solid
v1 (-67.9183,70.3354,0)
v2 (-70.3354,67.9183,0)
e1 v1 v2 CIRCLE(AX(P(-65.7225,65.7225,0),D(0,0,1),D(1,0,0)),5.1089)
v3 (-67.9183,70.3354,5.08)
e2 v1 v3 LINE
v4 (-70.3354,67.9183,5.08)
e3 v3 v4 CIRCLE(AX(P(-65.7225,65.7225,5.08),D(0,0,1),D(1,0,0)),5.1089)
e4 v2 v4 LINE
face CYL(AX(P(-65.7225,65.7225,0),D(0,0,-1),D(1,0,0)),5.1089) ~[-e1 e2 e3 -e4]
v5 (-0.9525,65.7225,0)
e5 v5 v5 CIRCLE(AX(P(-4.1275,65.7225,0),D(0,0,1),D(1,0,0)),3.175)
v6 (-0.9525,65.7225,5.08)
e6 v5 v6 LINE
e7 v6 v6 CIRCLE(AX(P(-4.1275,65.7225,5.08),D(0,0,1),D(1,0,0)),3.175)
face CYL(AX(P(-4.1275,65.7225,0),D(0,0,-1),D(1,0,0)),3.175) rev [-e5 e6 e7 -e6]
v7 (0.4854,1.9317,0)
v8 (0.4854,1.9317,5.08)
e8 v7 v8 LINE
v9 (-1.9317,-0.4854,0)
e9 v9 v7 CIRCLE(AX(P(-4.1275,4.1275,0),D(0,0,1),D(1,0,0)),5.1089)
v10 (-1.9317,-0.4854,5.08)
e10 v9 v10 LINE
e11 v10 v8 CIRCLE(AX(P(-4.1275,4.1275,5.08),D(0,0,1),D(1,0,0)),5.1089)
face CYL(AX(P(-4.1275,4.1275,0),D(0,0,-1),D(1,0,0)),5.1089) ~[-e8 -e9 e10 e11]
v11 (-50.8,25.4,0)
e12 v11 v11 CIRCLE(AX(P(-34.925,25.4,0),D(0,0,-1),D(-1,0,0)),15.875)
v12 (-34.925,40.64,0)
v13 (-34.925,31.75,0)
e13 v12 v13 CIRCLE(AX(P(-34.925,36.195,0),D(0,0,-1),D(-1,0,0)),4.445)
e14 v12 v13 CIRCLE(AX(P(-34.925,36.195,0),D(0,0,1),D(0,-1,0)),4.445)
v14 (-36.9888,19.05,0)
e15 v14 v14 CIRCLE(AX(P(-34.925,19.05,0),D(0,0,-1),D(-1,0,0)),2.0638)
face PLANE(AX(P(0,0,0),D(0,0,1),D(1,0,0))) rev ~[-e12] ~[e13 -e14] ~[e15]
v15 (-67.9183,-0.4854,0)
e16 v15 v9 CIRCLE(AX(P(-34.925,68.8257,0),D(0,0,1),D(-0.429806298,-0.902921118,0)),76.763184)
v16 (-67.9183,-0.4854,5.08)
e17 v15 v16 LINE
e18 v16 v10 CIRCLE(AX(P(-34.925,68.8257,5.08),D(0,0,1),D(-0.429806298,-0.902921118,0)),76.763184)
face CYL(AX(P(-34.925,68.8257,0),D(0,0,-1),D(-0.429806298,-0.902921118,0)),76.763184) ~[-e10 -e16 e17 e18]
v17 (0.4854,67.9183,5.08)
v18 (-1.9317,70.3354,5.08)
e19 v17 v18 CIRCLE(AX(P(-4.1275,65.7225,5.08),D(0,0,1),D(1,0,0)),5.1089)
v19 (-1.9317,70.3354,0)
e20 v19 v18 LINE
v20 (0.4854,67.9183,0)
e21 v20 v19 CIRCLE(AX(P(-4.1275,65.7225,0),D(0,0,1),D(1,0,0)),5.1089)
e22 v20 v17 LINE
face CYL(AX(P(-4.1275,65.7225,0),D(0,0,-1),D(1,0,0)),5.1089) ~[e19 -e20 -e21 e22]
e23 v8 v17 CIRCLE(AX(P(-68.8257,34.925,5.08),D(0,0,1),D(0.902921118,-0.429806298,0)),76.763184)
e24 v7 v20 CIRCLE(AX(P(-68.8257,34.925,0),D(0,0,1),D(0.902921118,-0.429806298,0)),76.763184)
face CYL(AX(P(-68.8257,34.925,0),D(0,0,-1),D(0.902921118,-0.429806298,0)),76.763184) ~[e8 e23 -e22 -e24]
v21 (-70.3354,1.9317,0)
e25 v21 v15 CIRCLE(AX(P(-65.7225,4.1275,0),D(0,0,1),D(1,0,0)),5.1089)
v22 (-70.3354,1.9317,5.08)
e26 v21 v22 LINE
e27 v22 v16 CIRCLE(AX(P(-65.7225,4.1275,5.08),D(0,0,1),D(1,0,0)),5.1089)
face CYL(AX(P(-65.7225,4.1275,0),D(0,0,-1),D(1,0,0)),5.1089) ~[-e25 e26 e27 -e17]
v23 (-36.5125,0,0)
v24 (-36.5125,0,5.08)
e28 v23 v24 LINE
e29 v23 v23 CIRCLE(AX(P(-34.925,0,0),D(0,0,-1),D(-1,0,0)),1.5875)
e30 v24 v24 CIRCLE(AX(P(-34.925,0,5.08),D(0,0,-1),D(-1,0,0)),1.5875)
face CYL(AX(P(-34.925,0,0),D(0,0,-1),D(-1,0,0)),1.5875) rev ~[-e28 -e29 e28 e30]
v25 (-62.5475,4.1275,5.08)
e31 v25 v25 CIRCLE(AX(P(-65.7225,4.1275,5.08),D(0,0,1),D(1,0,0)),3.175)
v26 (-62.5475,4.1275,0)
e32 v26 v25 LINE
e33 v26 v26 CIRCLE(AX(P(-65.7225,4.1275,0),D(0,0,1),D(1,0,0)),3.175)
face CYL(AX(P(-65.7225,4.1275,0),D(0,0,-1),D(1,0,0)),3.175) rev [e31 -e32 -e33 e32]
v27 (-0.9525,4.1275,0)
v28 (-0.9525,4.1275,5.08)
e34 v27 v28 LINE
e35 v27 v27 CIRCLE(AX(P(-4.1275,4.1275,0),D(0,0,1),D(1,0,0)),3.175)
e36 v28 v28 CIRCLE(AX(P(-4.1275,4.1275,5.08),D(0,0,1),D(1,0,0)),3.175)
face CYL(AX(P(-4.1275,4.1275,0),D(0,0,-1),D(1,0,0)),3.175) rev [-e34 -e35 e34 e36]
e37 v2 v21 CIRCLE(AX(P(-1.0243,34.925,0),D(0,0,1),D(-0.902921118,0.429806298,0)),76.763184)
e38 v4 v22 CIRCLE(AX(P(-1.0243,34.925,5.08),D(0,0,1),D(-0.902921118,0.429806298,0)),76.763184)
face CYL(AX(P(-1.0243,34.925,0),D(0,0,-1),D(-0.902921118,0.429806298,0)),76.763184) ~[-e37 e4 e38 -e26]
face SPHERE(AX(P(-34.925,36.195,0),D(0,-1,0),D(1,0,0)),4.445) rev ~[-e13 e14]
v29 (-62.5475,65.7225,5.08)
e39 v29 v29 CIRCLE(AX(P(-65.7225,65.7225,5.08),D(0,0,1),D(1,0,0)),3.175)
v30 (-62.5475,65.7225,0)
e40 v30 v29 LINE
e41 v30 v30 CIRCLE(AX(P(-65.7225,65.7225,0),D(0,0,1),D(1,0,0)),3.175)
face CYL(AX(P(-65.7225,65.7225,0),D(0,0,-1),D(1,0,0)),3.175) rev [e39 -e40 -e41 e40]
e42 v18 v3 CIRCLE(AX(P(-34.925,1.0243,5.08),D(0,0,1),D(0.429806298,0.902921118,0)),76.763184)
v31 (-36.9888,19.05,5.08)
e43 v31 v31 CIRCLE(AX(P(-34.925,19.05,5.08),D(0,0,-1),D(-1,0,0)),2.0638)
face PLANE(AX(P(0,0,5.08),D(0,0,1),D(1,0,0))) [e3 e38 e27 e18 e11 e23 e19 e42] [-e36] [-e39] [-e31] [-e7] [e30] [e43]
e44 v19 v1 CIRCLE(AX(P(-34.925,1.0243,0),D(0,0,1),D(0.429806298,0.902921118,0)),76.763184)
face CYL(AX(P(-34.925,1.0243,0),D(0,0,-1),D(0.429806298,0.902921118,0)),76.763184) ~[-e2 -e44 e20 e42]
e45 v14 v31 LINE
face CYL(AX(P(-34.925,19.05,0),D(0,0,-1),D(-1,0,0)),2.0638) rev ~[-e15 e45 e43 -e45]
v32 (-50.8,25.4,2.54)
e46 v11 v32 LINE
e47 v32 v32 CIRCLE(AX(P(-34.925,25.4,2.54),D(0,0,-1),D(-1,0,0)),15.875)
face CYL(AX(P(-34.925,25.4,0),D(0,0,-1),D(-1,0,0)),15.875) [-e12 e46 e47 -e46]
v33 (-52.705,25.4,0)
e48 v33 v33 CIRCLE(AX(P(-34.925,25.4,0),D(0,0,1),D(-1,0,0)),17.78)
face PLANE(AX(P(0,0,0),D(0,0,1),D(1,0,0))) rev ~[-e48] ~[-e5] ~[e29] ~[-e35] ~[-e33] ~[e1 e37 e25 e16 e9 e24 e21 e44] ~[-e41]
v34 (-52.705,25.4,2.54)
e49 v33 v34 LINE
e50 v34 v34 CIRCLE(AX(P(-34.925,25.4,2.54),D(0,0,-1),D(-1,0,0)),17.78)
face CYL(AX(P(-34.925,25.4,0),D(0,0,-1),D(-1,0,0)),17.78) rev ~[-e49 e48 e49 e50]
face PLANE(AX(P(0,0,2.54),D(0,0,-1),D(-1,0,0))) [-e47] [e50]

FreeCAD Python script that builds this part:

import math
import FreeCAD as App
import Part
import Sketcher
Q = App.Units.Quantity

doc = App.newDocument("Part")
body = doc.addObject("PartDesign::Body", "Body")

# Sketch on XY plane
sketch1 = doc.addObject("Sketcher::SketchObject", "Sketch")
body.addObject(sketch1)
sketch1.AttachmentSupport = (doc.XY_Plane, [""])
sketch1.MapMode = "FlatFace"
sketch1.addGeometry(Part.ArcOfCircle(Part.Circle(App.Vector(-34.9, 68.8, 0), App.Vector(0, 0, 1), 76.8), math.radians(-115), math.radians(-65)), False)
sketch1.addGeometry(Part.ArcOfCircle(Part.Circle(App.Vector(-4.1, 4.1, 0), App.Vector(0, 0, 1), 5.1), math.radians(-65), math.radians(-25)), False)
sketch1.addGeometry(Part.ArcOfCircle(Part.Circle(App.Vector(-68.8, 34.9, 0), App.Vector(0, 0, 1), 76.8), math.radians(-25), math.radians(25)), False)
sketch1.addGeometry(Part.ArcOfCircle(Part.Circle(App.Vector(-4.1, 65.7, 0), App.Vector(0, 0, 1), 5.1), math.radians(25), math.radians(65)), False)
sketch1.addGeometry(Part.ArcOfCircle(Part.Circle(App.Vector(-34.9, 1, 0), App.Vector(0, 0, 1), 76.8), math.radians(65), math.radians(115)), False)
sketch1.addGeometry(Part.ArcOfCircle(Part.Circle(App.Vector(-65.7, 65.7, 0), App.Vector(0, 0, 1), 5.1), math.radians(115), math.radians(155)), False)
sketch1.addGeometry(Part.ArcOfCircle(Part.Circle(App.Vector(-1, 34.9, 0), App.Vector(0, 0, 1), 76.8), math.radians(155), math.radians(205)), False)
sketch1.addGeometry(Part.ArcOfCircle(Part.Circle(App.Vector(-65.7, 4.1, 0), App.Vector(0, 0, 1), 5.1), math.radians(-155), math.radians(-115)), False)
sketch1.addGeometry(Part.Circle(App.Vector(-65.7, 4.1, 0), App.Vector(0, 0, 1), 3.2), False)
sketch1.addGeometry(Part.Circle(App.Vector(-4.1, 4.1, 0), App.Vector(0, 0, 1), 3.2), False)
sketch1.addGeometry(Part.Circle(App.Vector(-65.7, 65.7, 0), App.Vector(0, 0, 1), 3.2), False)
sketch1.addGeometry(Part.Circle(App.Vector(-4.1, 65.7, 0), App.Vector(0, 0, 1), 3.2), False)
sketch1.addConstraint(Sketcher.Constraint("Tangent", 0, 2, 1, 1))
sketch1.addConstraint(Sketcher.Constraint("Tangent", 1, 2, 2, 1))
sketch1.addConstraint(Sketcher.Constraint("Tangent", 2, 2, 3, 1))
sketch1.addConstraint(Sketcher.Constraint("Tangent", 3, 2, 4, 1))
sketch1.addConstraint(Sketcher.Constraint("Tangent", 4, 2, 5, 1))
sketch1.addConstraint(Sketcher.Constraint("Tangent", 5, 2, 6, 1))
sketch1.addConstraint(Sketcher.Constraint("Tangent", 6, 2, 7, 1))
sketch1.addConstraint(Sketcher.Constraint("Tangent", 7, 2, 0, 1))
sketch1.addConstraint(Sketcher.Constraint("Coincident", 8, 3, 7, 3))
sketch1.addConstraint(Sketcher.Constraint("Coincident", 9, 3, 1, 3))
sketch1.addConstraint(Sketcher.Constraint("Coincident", 10, 3, 5, 3))
sketch1.addConstraint(Sketcher.Constraint("Coincident", 11, 3, 3, 3))
sketch1.addConstraint(Sketcher.Constraint("Equal", 0, 2))
sketch1.addConstraint(Sketcher.Constraint("Equal", 1, 3))
sketch1.addConstraint(Sketcher.Constraint("Equal", 2, 4))
sketch1.addConstraint(Sketcher.Constraint("Equal", 3, 5))
sketch1.addConstraint(Sketcher.Constraint("Equal", 4, 6))
sketch1.addConstraint(Sketcher.Constraint("Equal", 5, 7))
sketch1.addConstraint(Sketcher.Constraint("Equal", 8, 9))
sketch1.addConstraint(Sketcher.Constraint("Equal", 9, 10))
sketch1.addConstraint(Sketcher.Constraint("Equal", 10, 11))
sketch1.addConstraint(Sketcher.Constraint("Horizontal", 3, 3, 5, 3))
sketch1.addConstraint(Sketcher.Constraint("Horizontal", 2, 3, 6, 3))
sketch1.addConstraint(Sketcher.Constraint("Horizontal", 1, 3, 7, 3))
sketch1.addConstraint(Sketcher.Constraint("Vertical", 1, 3, 3, 3))
sketch1.addConstraint(Sketcher.Constraint("Diameter", 8, Q("0.25 in")))
sketch1.addConstraint(Sketcher.Constraint("DistanceY", 1, 3, 3, 3, Q("2.425 in")))
sketch1.addConstraint(Sketcher.Constraint("DistanceX", 5, 3, 3, 3, Q("2.425 in")))
sketch1.addConstraint(Sketcher.Constraint("Radius", 0, Q("76.7632 mm")))
sketch1.addConstraint(Sketcher.Constraint("Radius", 1, Q("5.109 mm")))
sketch1.addConstraint(Sketcher.Constraint("DistanceX", 0, 3, -1, 1, Q("1.375 in")))
sketch1.addConstraint(Sketcher.Constraint("DistanceY", -1, 1, 2, 3, Q("1.375 in")))
pad1 = doc.addObject("PartDesign::Pad", "Pad")
body.addObject(pad1)
pad1.Profile = sketch1
pad1.Length = Q("0.2 in")

# Sketch on XY plane
sketch2 = doc.addObject("Sketcher::SketchObject", "Sketch001")
body.addObject(sketch2)
sketch2.AttachmentSupport = (doc.XY_Plane, [""])
sketch2.MapMode = "FlatFace"
sketch2.addGeometry(Part.Circle(App.Vector(-35, 25, 0), App.Vector(0, 0, 1), 18), False)
sketch2.addGeometry(Part.Circle(App.Vector(-35, 25, 0), App.Vector(0, 0, 1), 16), False)
sketch2.addConstraint(Sketcher.Constraint("Coincident", 1, 3, 0, 3))
sketch2.addConstraint(Sketcher.Constraint("Diameter", 0, Q("1.4 in")))
sketch2.addConstraint(Sketcher.Constraint("Diameter", 1, Q("1.25 in")))
sketch2.addConstraint(Sketcher.Constraint("DistanceY", -1, 1, 0, 3, Q("1 in")))
sketch2.addConstraint(Sketcher.Constraint("DistanceX", 0, 3, -1, 1, Q("1.375 in")))
pocket1 = doc.addObject("PartDesign::Pocket", "Pocket")
body.addObject(pocket1)
pocket1.Profile = sketch2
pocket1.Length = Q("0.1 in")
pocket1.Reversed = True

# Sketch on XY plane
sketch3 = doc.addObject("Sketcher::SketchObject", "Sketch002")
body.addObject(sketch3)
sketch3.AttachmentSupport = (doc.XY_Plane, [""])
sketch3.MapMode = "FlatFace"
sketch3.addGeometry(Part.Circle(App.Vector(-34.9, 19.1, 0), App.Vector(0, 0, 1), 2.1), False)
sketch3.addGeometry(Part.Circle(App.Vector(-34.9, 0, 0), App.Vector(0, 0, 1), 1.6), False)
sketch3.addConstraint(Sketcher.Constraint("PointOnObject", 1, 3, -1))
sketch3.addConstraint(Sketcher.Constraint("Vertical", 0, 3, 1, 3))
sketch3.addConstraint(Sketcher.Constraint("Diameter", 1, Q("0.125 in")))
sketch3.addConstraint(Sketcher.Constraint("Diameter", 0, Q("0.1625 in")))
sketch3.addConstraint(Sketcher.Constraint("DistanceY", -1, 1, 0, 3, Q("0.75 in")))
sketch3.addConstraint(Sketcher.Constraint("DistanceX", 0, 3, -1, 1, Q("1.375 in")))
pocket2 = doc.addObject("PartDesign::Pocket", "Pocket001")
body.addObject(pocket2)
pocket2.Profile = sketch3
pocket2.Type = "ThroughAll"
pocket2.Midplane = True

# Sketch on XY plane
sketch4 = doc.addObject("Sketcher::SketchObject", "Sketch003")
body.addObject(sketch4)
sketch4.AttachmentSupport = (doc.XY_Plane, [""])
sketch4.MapMode = "FlatFace"
sketch4.addGeometry(Part.LineSegment(App.Vector(-34.9, 31.8, 0), App.Vector(-34.9, 40.6, 0)), False)
sketch4.addGeometry(Part.ArcOfCircle(Part.Circle(App.Vector(-34.9, 36.2, 0), App.Vector(0, 0, 1), 4.4), math.radians(-90), math.radians(90)), False)
sketch4.addGeometry(Part.LineSegment(App.Vector(-34.9, 40.6, 0), App.Vector(-34.9, 31.8, 0)), True)  # axis
sketch4.addConstraint(Sketcher.Constraint("Coincident", 0, 1, 1, 1))
sketch4.addConstraint(Sketcher.Constraint("Coincident", 1, 2, 0, 2))
sketch4.addConstraint(Sketcher.Constraint("Vertical", 0))
sketch4.addConstraint(Sketcher.Constraint("Vertical", 2))
sketch4.addConstraint(Sketcher.Constraint("Coincident", 2, 1, 1, 2))
sketch4.addConstraint(Sketcher.Constraint("Vertical", 1, 3, 0, 1))
sketch4.addConstraint(Sketcher.Constraint("Equal", 0, 2))
sketch4.addConstraint(Sketcher.Constraint("Radius", 1, Q("0.175 in")))
sketch4.addConstraint(Sketcher.Constraint("DistanceY", -1, 1, 1, 2, Q("1.6 in")))
sketch4.addConstraint(Sketcher.Constraint("DistanceX", 1, 3, -1, 1, Q("1.375 in")))
groove = doc.addObject("PartDesign::Groove", "Groove")
body.addObject(groove)
groove.Profile = sketch4
groove.ReferenceAxis = (sketch4, ["Axis0"])
groove.Angle = 360

doc.recompute()
